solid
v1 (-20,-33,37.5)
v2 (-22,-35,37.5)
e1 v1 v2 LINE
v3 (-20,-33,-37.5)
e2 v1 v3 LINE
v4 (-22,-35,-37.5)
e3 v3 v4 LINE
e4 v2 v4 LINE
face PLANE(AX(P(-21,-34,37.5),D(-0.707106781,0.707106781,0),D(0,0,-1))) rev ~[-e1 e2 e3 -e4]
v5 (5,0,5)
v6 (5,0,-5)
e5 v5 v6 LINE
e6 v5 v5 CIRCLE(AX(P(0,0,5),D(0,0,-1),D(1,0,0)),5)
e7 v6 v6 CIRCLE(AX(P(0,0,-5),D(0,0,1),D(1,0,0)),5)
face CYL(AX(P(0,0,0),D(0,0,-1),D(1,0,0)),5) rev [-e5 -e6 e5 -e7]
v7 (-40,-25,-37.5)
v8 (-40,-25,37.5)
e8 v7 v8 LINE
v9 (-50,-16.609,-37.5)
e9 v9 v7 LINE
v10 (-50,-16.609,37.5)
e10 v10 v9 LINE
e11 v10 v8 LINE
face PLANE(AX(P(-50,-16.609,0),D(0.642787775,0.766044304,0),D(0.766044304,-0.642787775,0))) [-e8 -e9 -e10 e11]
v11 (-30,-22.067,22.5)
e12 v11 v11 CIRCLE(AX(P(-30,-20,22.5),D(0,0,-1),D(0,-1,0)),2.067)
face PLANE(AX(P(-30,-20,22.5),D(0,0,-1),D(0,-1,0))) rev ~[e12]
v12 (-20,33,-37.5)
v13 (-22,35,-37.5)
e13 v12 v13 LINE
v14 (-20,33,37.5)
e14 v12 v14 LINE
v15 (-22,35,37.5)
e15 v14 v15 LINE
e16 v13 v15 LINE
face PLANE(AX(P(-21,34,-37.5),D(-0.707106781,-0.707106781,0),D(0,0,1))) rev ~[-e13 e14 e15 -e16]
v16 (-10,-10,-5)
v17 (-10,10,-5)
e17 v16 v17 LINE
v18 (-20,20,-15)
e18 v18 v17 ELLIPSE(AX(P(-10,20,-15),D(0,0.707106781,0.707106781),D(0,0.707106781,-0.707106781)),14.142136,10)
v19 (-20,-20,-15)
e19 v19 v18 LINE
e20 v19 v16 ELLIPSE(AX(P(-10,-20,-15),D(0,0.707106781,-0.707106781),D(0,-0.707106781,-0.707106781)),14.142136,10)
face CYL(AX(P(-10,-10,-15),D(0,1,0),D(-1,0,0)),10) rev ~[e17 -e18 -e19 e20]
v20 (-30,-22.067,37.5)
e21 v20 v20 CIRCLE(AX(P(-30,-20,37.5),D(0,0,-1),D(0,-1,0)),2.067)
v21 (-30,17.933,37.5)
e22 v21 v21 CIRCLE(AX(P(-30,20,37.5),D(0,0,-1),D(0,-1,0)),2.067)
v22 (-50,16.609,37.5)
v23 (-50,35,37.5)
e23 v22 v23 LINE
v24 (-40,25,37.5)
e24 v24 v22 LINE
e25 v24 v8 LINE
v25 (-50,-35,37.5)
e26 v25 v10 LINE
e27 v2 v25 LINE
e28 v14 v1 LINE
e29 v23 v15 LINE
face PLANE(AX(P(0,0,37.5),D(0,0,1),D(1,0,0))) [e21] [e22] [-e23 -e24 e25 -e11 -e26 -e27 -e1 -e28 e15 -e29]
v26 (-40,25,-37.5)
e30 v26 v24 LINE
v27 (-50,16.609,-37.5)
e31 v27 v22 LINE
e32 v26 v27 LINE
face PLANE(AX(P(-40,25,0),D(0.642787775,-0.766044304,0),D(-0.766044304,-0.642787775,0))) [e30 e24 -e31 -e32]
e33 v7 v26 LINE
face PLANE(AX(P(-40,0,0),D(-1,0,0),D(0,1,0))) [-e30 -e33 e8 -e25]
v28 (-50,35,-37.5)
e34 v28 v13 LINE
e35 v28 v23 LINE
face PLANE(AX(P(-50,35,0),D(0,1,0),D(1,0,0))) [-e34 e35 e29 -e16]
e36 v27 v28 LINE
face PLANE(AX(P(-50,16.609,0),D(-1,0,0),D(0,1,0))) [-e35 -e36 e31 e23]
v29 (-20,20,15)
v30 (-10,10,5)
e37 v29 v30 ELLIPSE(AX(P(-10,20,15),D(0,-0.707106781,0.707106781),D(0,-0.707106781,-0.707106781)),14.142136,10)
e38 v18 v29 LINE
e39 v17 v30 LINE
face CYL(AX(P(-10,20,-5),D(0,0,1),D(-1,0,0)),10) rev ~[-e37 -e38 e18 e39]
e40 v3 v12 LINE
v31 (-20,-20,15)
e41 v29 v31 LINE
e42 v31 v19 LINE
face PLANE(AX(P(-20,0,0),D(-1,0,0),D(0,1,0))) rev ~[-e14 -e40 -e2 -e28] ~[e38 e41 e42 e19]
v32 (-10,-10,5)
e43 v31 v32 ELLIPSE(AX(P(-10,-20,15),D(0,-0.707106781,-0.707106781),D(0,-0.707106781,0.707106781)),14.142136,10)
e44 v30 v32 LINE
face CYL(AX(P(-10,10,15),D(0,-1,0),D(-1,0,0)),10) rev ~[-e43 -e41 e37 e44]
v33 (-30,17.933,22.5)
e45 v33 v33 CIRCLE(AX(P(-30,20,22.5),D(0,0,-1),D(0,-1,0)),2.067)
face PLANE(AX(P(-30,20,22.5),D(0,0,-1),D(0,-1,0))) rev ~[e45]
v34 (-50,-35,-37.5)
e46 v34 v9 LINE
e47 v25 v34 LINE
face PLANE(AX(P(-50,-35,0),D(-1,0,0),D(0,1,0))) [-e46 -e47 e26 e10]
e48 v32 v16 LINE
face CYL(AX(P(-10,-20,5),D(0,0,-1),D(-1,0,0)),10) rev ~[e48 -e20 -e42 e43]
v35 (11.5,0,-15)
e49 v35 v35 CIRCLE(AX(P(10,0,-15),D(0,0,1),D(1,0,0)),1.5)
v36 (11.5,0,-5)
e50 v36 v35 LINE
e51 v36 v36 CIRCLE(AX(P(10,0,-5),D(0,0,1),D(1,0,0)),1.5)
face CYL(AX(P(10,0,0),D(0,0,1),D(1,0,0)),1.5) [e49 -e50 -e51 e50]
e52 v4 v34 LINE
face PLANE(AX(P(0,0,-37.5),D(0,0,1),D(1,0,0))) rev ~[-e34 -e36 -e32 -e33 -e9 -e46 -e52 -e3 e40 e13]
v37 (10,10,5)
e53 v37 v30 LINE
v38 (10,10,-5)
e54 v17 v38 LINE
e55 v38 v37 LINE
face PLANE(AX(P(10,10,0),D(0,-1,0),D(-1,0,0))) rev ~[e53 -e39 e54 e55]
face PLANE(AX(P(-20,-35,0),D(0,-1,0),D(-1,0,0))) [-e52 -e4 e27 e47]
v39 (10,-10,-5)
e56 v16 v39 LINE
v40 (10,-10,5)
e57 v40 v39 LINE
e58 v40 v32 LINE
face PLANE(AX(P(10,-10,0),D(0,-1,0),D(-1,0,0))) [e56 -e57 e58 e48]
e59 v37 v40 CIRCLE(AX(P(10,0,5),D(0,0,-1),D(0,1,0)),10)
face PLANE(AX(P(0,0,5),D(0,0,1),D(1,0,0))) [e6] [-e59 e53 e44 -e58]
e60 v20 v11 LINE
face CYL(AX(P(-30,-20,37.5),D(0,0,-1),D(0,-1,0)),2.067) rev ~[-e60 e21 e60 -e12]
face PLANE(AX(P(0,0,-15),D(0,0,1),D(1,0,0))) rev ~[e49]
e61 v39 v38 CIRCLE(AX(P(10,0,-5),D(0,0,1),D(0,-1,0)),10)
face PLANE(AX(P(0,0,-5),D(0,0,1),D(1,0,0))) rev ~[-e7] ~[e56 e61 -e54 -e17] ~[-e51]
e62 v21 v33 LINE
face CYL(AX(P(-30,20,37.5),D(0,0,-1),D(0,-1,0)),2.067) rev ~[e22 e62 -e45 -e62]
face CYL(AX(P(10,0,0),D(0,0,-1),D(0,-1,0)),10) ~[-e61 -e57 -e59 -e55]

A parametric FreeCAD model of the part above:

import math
import FreeCAD as App
import Part
import Sketcher

V = App.Vector
Q = App.Units.Quantity


def edges_at(feature, points):
    """Names of the edges that pass closest to the given points."""
    edges = feature.Shape.Edges
    near = lambda p: min(range(len(edges)), key=lambda i: edges[i].distToShape(Part.Vertex(*p))[0])
    return sorted({f"Edge{near(p) + 1}" for p in points})


def add_polygon(sketch, points):
    """Adds a closed chain of lines whose ends are joined by coincident constraints."""
    first, n = sketch.GeometryCount, len(points)
    for a, b in zip(points, points[1:] + points[:1]):
        sketch.addGeometry(Part.LineSegment(App.Vector(*a, 0), App.Vector(*b, 0)), False)
    for i in range(n):
        sketch.addConstraint(Sketcher.Constraint("Coincident", first + i, 2, first + (i + 1) % n, 1))

doc = App.newDocument("Part")
body = doc.addObject("PartDesign::Body", "Body")

sketch1 = body.newObject("Sketcher::SketchObject", "Sketch")
sketch1.AttachmentSupport = (doc.getObject("XY_Plane"), [""])
sketch1.MapMode = "FlatFace"
sketch1.addGeometry([
    Part.ArcOfCircle(Part.Circle(V(10, 0, 0), V(0, 0, 1), 10), math.radians(-90), math.radians(90)),
    Part.LineSegment(V(10, 10, 0), V(-20, 10, 0)),
    Part.LineSegment(V(-20, 10, 0), V(-20, -10, 0)),
    Part.LineSegment(V(-20, -10, 0), V(10, -10, 0)),
    Part.Circle(V(0, 0, 0), V(0, 0, 1), 5),
], False)
sketch1.addConstraint([
    Sketcher.Constraint("Tangent", 0, 2, 1, 1),
    Sketcher.Constraint("Coincident", 1, 2, 2, 1),
    Sketcher.Constraint("Coincident", 2, 2, 3, 1),
    Sketcher.Constraint("Tangent", 3, 2, 0, 1),
    Sketcher.Constraint("Horizontal", 1),
    Sketcher.Constraint("Vertical", 2),
    Sketcher.Constraint("Horizontal", 3),
    Sketcher.Constraint("Coincident", 4, 3, -1, 1),
    Sketcher.Constraint("PointOnObject", 0, 3, -1),
    Sketcher.Constraint("Diameter", 4, 10.0),
    Sketcher.Constraint("Radius", 0, 10.0),
    Sketcher.Constraint("DistanceX", 1, 2, 1, 1, 30.0),
    Sketcher.Constraint("DistanceX", -1, 1, 0, 3, 10.0),
])
pad1 = body.newObject("PartDesign::Pad", "Pad")
pad1.Profile = sketch1
pad1.Length = 10
pad1.Midplane = True

sketch2 = body.newObject("Sketcher::SketchObject", "Sketch001")
sketch2.AttachmentSupport = (doc.getObject("XY_Plane"), [""])
sketch2.MapMode = "FlatFace"
add_polygon(sketch2, [(-20, 35), (-50, 35), (-50, 17), (-40, 25), (-40, -25), (-50, -17), (-50, -35), (-20, -35)])
sketch2.addConstraint([
    Sketcher.Constraint("Horizontal", 0),
    Sketcher.Constraint("Vertical", 1),
    Sketcher.Constraint("Vertical", 3),
    Sketcher.Constraint("Vertical", 5),
    Sketcher.Constraint("Horizontal", 6),
    Sketcher.Constraint("Vertical", 7),
    Sketcher.Constraint("Symmetric", 1, 2, 4, 2, -1),
    Sketcher.Constraint("Equal", 1, 5),
    Sketcher.Constraint("Equal", 2, 4),
    Sketcher.Constraint("DistanceX", 0, 2, 0, 1, 30.0),
    Sketcher.Constraint("DistanceY", 3, 2, 3, 1, 50.0),
    Sketcher.Constraint("DistanceX", 0, 2, -1, 1, 50.0),
    Sketcher.Constraint("DistanceX", 1, 2, 2, 2, 10.0),
    Sketcher.Constraint("DistanceY", 2, 2, 0, 2, 10.0),
    Sketcher.Constraint("Angle", 2, Q("40 deg")),
])
pad2 = body.newObject("PartDesign::Pad", "Pad001")
pad2.Profile = sketch2
pad2.Length = 75
pad2.Midplane = True
doc.recompute()

chamfer = body.newObject("PartDesign::Chamfer", "Chamfer")
chamfer.Base = (pad2, edges_at(pad2, [(-20, 35, 0), (-20, -35, 0)]))
chamfer.Size = 2
doc.recompute()

fillet = body.newObject("PartDesign::Fillet", "Fillet")
fillet.Base = (chamfer, edges_at(chamfer, [
    (-20, 0, 5),
    (-20, -10, 0),
    (-20, 0, -5),
    (-20, 10, 0),
]))
fillet.Radius = 10

sketch3 = body.newObject("Sketcher::SketchObject", "Sketch002")
sketch3.AttachmentSupport = (doc.getObject("XY_Plane"), [""])
sketch3.MapMode = "FlatFace"
sketch3.AttachmentOffset = App.Placement(V(0, 0, 37.5), App.Rotation())
sketch3.addGeometry([
    Part.Circle(V(-30, 20, 0), V(0, 0, 1), 2.1),
    Part.Circle(V(-30, -20, 0), V(0, 0, 1), 2.1),
], False)
sketch3.addConstraint([
    Sketcher.Constraint("Equal", 0, 1),
    Sketcher.Constraint("Symmetric", 0, 3, 1, 3, -1),
    Sketcher.Constraint("Diameter", 0, 4.134),
    Sketcher.Constraint("DistanceX", 0, 3, -1, 1, 30.0),
    Sketcher.Constraint("DistanceY", -1, 1, 0, 3, 20.0),
])
doc.recompute()
hole = body.newObject("PartDesign::Hole", "Hole")
hole.Profile = sketch3
hole.ThreadType = "None"
hole.Diameter = 4.134
hole.DepthType = "Dimension"
hole.Depth = 15
hole.DrillPoint = "Flat"

sketch4 = body.newObject("Sketcher::SketchObject", "Sketch003")
sketch4.AttachmentSupport = (doc.getObject("XY_Plane"), [""])
sketch4.MapMode = "FlatFace"
sketch4.addGeometry(Part.Circle(V(10, 0, 0), V(0, 0, 1), 1.5), False)
sketch4.addConstraint([
    Sketcher.Constraint("PointOnObject", 0, 3, -1),
    Sketcher.Constraint("Diameter", 0, 3.0),
    Sketcher.Constraint("DistanceX", -1, 1, 0, 3, 10.0),
])
pad3 = body.newObject("PartDesign::Pad", "Pad002")
pad3.Profile = sketch4
pad3.Length = 15
pad3.Reversed = True

doc.recompute()
